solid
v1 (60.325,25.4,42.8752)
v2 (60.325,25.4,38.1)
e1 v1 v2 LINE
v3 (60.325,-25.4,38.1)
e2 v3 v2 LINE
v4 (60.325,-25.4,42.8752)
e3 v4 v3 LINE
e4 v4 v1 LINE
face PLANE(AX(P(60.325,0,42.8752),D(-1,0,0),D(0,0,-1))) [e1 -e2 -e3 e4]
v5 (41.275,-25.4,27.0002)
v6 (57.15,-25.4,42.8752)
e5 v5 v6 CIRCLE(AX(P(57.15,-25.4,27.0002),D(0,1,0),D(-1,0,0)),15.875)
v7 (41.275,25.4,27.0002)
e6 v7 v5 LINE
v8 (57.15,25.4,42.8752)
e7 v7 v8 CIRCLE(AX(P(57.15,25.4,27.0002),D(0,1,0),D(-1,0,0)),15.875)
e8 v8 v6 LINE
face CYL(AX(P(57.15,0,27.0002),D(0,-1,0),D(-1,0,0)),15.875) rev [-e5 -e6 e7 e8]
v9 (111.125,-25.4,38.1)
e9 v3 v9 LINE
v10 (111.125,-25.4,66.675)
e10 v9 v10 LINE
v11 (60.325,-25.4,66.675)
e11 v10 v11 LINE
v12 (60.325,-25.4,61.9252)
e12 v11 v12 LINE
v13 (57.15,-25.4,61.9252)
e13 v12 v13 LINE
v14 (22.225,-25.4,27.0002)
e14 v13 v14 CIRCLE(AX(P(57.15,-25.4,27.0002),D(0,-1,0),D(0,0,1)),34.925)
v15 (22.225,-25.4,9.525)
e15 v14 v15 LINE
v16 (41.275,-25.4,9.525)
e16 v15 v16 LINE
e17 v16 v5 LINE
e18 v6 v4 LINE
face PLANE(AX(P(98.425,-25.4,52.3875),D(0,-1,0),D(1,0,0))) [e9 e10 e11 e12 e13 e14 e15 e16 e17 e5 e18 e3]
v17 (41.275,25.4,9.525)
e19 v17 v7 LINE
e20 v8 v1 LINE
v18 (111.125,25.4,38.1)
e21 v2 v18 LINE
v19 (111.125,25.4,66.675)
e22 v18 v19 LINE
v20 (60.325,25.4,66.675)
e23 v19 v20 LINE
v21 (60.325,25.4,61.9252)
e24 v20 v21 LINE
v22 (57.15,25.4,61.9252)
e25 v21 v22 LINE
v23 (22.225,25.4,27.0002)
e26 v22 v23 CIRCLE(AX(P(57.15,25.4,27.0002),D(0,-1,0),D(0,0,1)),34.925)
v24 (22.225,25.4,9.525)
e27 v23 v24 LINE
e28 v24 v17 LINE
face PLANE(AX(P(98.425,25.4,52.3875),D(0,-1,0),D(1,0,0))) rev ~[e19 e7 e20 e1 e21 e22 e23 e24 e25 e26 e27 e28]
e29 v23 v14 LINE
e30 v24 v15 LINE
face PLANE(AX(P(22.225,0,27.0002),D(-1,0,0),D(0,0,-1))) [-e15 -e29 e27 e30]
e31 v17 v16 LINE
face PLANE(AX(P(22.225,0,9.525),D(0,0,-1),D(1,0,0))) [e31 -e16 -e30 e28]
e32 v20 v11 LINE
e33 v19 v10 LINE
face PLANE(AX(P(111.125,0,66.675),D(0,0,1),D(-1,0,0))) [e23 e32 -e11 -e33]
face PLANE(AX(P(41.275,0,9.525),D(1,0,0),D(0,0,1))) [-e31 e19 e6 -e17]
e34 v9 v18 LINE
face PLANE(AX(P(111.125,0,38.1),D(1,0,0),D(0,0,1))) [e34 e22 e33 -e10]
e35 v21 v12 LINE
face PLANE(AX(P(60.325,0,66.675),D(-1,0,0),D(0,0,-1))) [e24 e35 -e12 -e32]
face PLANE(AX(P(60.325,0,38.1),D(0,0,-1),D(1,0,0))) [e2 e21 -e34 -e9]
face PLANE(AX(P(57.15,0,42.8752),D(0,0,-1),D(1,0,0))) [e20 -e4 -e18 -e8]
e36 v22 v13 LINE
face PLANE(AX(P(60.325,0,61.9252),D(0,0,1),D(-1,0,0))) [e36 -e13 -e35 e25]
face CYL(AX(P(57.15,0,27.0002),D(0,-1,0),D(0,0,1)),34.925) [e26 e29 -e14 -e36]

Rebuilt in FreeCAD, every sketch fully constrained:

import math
import FreeCAD as App
import Part
import Sketcher

V = App.Vector
Q = App.Units.Quantity

doc = App.newDocument("Part")
body = doc.addObject("PartDesign::Body", "Body")

# Sketch on XZ plane
sketch1 = doc.addObject("Sketcher::SketchObject", "Sketch")
body.addObject(sketch1)
sketch1.AttachmentSupport = (doc.XZ_Plane, [""])
sketch1.MapMode = "FlatFace"
sketch1.addGeometry(Part.LineSegment(V(111.1, 38.1, 0), V(111.1, 66.7, 0)), False)
sketch1.addGeometry(Part.LineSegment(V(111.1, 66.7, 0), V(60.3, 66.7, 0)), False)
sketch1.addGeometry(Part.LineSegment(V(60.3, 66.7, 0), V(60.3, 61.9, 0)), False)
sketch1.addGeometry(Part.LineSegment(V(60.3, 61.9, 0), V(57.1, 61.9, 0)), False)
sketch1.addGeometry(Part.ArcOfCircle(Part.Circle(V(57.1, 27, 0), V(0, 0, 1), 34.9), math.radians(90), math.radians(180)), False)
sketch1.addGeometry(Part.LineSegment(V(22.2, 27, 0), V(22.2, 9.5, 0)), False)
sketch1.addGeometry(Part.LineSegment(V(22.2, 9.5, 0), V(41.3, 9.5, 0)), False)
sketch1.addGeometry(Part.LineSegment(V(41.3, 9.5, 0), V(41.3, 27, 0)), False)
sketch1.addGeometry(Part.ArcOfCircle(Part.Circle(V(57.1, 27, 0), V(0, 0, 1), 15.9), math.radians(90), math.radians(180)), False)
sketch1.addGeometry(Part.LineSegment(V(57.1, 42.9, 0), V(60.3, 42.9, 0)), False)
sketch1.addGeometry(Part.LineSegment(V(60.3, 42.9, 0), V(60.3, 38.1, 0)), False)
sketch1.addGeometry(Part.LineSegment(V(60.3, 38.1, 0), V(111.1, 38.1, 0)), False)
sketch1.addConstraint(Sketcher.Constraint("Coincident", 0, 2, 1, 1))
sketch1.addConstraint(Sketcher.Constraint("Coincident", 1, 2, 2, 1))
sketch1.addConstraint(Sketcher.Constraint("Coincident", 2, 2, 3, 1))
sketch1.addConstraint(Sketcher.Constraint("Tangent", 3, 2, 4, 1))
sketch1.addConstraint(Sketcher.Constraint("Tangent", 4, 2, 5, 1))
sketch1.addConstraint(Sketcher.Constraint("Coincident", 5, 2, 6, 1))
sketch1.addConstraint(Sketcher.Constraint("Coincident", 6, 2, 7, 1))
sketch1.addConstraint(Sketcher.Constraint("Tangent", 7, 2, 8, 2))
sketch1.addConstraint(Sketcher.Constraint("Tangent", 8, 1, 9, 1))
sketch1.addConstraint(Sketcher.Constraint("Coincident", 9, 2, 10, 1))
sketch1.addConstraint(Sketcher.Constraint("Coincident", 10, 2, 11, 1))
sketch1.addConstraint(Sketcher.Constraint("Coincident", 11, 2, 0, 1))
sketch1.addConstraint(Sketcher.Constraint("Vertical", 0))
sketch1.addConstraint(Sketcher.Constraint("Horizontal", 1))
sketch1.addConstraint(Sketcher.Constraint("Vertical", 2))
sketch1.addConstraint(Sketcher.Constraint("Horizontal", 3))
sketch1.addConstraint(Sketcher.Constraint("Vertical", 5))
sketch1.addConstraint(Sketcher.Constraint("Horizontal", 6))
sketch1.addConstraint(Sketcher.Constraint("Vertical", 7))
sketch1.addConstraint(Sketcher.Constraint("Horizontal", 9))
sketch1.addConstraint(Sketcher.Constraint("Vertical", 10))
sketch1.addConstraint(Sketcher.Constraint("Horizontal", 11))
sketch1.addConstraint(Sketcher.Constraint("Coincident", 8, 3, 4, 3))
sketch1.addConstraint(Sketcher.Constraint("Vertical", 2, 2, 9, 2))
sketch1.addConstraint(Sketcher.Constraint("DistanceX", 1, 2, 1, 1, Q("2 in")))
sketch1.addConstraint(Sketcher.Constraint("Radius", 4, Q("1.375 in")))
sketch1.addConstraint(Sketcher.Constraint("Radius", 8, Q("0.625 in")))
sketch1.addConstraint(Sketcher.Constraint("DistanceY", -1, 1, 10, 2, Q("1.5 in")))
sketch1.addConstraint(Sketcher.Constraint("DistanceX", 4, 2, 2, 2, Q("1.5 in")))
sketch1.addConstraint(Sketcher.Constraint("DistanceY", 0, 1, 0, 2, Q("1.125 in")))
sketch1.addConstraint(Sketcher.Constraint("DistanceY", 2, 2, 2, 1, Q("0.187 in")))
sketch1.addConstraint(Sketcher.Constraint("DistanceY", 5, 2, 5, 1, Q("0.688 in")))
sketch1.addConstraint(Sketcher.Constraint("DistanceX", -1, 1, 4, 3, Q("2.25 in")))
pad1 = doc.addObject("PartDesign::Pad", "Pad")
body.addObject(pad1)
pad1.Profile = sketch1
pad1.Length = Q("2 in")
pad1.Midplane = True

doc.recompute()
